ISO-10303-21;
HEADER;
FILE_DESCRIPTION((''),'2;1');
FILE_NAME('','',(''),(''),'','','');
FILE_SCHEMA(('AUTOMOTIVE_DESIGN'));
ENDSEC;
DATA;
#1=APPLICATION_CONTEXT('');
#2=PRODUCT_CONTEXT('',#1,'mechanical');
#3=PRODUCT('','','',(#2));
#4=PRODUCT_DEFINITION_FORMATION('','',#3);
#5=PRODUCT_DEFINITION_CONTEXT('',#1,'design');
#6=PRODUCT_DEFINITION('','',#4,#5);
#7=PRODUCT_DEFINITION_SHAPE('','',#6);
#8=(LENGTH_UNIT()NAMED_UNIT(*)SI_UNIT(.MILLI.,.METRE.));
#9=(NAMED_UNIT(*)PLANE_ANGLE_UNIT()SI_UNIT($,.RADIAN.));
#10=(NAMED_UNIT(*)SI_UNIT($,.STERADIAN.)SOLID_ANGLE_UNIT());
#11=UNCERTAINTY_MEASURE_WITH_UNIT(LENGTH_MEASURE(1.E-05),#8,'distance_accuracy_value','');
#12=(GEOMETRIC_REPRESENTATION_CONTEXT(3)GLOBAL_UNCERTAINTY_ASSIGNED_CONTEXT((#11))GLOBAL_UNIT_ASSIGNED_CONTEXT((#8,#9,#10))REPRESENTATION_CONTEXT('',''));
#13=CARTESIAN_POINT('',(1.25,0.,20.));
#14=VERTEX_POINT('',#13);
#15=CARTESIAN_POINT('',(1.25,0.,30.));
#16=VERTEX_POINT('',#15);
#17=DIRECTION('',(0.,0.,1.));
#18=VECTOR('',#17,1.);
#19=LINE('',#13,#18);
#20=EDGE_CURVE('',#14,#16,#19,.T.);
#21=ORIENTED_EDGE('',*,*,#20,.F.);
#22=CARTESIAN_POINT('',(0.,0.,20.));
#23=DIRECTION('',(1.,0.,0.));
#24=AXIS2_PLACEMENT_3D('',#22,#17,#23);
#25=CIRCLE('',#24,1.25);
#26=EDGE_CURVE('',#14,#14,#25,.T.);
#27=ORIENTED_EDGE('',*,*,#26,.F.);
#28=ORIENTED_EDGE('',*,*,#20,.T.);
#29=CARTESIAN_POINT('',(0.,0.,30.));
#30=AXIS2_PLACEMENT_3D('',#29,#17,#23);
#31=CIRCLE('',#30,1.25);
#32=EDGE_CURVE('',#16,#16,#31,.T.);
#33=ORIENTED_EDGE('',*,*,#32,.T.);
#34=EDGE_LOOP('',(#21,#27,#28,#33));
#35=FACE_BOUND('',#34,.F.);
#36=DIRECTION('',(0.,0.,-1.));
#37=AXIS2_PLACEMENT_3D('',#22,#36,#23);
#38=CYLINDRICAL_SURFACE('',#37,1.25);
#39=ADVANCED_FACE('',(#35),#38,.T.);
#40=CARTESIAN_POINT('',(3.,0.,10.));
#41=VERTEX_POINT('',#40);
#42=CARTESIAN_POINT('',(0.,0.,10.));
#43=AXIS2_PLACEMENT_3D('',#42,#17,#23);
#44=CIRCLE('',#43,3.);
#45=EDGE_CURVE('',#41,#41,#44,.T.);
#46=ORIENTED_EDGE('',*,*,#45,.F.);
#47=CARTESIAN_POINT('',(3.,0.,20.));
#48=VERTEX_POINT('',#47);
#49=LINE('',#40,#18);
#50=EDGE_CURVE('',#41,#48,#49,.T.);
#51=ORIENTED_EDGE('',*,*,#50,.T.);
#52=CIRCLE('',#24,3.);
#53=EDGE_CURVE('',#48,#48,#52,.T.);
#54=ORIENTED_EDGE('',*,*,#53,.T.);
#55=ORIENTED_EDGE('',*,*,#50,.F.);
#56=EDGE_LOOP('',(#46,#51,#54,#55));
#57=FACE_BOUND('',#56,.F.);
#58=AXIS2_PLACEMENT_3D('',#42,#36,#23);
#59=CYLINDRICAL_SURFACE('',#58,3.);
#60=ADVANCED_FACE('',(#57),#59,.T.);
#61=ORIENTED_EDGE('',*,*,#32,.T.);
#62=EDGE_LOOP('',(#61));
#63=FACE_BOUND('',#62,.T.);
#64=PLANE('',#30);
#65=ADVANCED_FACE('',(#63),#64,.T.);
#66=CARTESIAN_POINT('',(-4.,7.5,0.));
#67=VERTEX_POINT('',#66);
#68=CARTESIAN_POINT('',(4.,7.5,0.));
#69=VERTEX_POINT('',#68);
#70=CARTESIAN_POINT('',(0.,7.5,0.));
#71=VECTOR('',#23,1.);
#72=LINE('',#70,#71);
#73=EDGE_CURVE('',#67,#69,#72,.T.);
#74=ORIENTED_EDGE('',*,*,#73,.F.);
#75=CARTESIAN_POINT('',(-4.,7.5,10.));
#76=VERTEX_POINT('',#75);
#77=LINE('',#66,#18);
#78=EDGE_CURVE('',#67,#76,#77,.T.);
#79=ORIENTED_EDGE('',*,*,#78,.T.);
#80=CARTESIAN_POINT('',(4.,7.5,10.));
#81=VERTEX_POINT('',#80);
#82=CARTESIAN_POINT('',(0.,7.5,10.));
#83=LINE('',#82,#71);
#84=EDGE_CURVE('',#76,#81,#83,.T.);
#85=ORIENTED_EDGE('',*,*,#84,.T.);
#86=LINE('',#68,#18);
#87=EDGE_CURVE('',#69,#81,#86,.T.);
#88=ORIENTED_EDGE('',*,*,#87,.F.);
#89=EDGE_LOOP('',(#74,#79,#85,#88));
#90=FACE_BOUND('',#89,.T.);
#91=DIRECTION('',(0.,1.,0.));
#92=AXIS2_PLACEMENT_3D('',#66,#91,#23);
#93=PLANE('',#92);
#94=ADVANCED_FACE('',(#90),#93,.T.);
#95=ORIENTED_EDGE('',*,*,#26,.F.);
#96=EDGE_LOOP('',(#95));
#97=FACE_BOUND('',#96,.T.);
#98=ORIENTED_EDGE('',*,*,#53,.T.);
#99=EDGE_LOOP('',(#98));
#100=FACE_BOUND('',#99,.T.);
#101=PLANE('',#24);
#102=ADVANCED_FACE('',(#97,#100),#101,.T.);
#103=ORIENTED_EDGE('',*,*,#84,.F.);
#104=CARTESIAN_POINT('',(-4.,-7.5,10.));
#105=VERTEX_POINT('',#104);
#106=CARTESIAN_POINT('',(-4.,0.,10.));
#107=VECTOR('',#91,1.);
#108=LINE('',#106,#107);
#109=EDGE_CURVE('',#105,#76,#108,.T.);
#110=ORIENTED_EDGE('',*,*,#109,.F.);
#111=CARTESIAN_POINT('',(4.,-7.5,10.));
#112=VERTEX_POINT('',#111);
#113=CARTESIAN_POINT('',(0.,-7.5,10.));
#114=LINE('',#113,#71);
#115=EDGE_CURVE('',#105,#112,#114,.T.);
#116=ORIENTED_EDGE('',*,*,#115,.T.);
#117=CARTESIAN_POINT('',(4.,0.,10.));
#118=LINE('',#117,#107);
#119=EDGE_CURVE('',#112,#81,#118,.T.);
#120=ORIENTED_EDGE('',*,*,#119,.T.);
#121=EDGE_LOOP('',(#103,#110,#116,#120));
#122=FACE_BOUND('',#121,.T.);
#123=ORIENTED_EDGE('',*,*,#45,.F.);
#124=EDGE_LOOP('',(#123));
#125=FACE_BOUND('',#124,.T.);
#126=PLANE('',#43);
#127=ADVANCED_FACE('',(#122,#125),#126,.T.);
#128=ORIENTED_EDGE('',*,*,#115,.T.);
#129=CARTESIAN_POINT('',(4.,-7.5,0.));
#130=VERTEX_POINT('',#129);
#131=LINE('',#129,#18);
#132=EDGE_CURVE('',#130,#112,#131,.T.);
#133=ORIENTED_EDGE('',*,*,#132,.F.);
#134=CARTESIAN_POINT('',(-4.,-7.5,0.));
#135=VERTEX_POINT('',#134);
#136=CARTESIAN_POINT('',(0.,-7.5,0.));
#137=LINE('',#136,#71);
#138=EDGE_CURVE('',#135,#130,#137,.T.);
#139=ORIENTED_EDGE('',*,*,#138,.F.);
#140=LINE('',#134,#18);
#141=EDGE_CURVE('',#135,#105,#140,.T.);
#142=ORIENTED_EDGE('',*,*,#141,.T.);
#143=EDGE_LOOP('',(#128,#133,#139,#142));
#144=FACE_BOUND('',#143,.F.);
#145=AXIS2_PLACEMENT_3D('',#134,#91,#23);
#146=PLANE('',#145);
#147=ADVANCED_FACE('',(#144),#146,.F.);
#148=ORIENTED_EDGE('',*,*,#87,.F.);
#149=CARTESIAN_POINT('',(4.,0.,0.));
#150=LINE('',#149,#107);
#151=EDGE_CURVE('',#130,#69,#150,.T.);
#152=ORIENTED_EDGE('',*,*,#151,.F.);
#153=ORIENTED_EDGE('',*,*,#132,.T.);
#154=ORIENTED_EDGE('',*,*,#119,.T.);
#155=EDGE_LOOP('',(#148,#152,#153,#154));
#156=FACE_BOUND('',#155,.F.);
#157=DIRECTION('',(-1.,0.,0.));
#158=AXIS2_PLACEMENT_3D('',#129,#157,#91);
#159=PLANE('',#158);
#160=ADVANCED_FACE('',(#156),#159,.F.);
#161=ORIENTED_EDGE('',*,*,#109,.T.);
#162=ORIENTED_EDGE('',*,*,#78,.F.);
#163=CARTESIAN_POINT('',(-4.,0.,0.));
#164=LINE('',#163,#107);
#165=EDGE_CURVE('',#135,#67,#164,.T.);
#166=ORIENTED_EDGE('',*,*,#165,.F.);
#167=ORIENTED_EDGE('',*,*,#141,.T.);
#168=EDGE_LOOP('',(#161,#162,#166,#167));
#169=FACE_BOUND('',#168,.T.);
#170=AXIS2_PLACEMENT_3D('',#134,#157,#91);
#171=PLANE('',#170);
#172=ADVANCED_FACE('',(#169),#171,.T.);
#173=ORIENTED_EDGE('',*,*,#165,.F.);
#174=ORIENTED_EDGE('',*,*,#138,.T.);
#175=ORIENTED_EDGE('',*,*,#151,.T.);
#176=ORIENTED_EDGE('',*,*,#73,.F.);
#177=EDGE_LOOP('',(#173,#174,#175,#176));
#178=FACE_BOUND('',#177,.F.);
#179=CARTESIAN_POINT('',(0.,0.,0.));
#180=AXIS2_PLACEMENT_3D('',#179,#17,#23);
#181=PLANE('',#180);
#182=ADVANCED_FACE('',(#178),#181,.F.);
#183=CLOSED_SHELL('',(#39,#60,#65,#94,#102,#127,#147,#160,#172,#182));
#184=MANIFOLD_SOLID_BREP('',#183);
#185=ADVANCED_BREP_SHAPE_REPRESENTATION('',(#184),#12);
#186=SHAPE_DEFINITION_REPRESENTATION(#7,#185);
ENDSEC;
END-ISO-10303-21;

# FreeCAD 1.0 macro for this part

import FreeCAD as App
import Part
import Sketcher
from FreeCAD import Vector


def add_polygon(sketch, points):
    """Adds a closed chain of lines whose ends are joined by coincident constraints."""
    first, n = sketch.GeometryCount, len(points)
    for a, b in zip(points, points[1:] + points[:1]):
        sketch.addGeometry(Part.LineSegment(App.Vector(*a, 0), App.Vector(*b, 0)), False)
    for i in range(n):
        sketch.addConstraint(Sketcher.Constraint("Coincident", first + i, 2, first + (i + 1) % n, 1))

doc = App.newDocument("Part")
body = doc.addObject("PartDesign::Body", "Body")

# Sketch on XY plane
sketch1 = body.newObject("Sketcher::SketchObject", "Sketch")
sketch1.AttachmentSupport = (doc.getObject("XY_Plane"), [""])
sketch1.MapMode = "FlatFace"
add_polygon(sketch1, [(-4, 7.5), (-4, -7.5), (4, -7.5), (4, 7.5)])  # lines 0-3
sketch1.addConstraint([
    Sketcher.Constraint("Vertical", 0),
    Sketcher.Constraint("Horizontal", 1),
    Sketcher.Constraint("Vertical", 2),
    Sketcher.Constraint("Horizontal", 3),
    Sketcher.Constraint("Symmetric", 0, 2, 2, 2, -1, 1),
    Sketcher.Constraint("DistanceX", 1, 1, 1, 2, 8.0),
    Sketcher.Constraint("DistanceY", 0, 2, 0, 1, 15.0),
])
pad1 = body.newObject("PartDesign::Pad", "Pad")
pad1.Profile = sketch1
pad1.Length = 10

# Sketch on XY plane
sketch2 = body.newObject("Sketcher::SketchObject", "Sketch001")
sketch2.AttachmentSupport = (doc.getObject("XY_Plane"), [""])
sketch2.MapMode = "FlatFace"
sketch2.AttachmentOffset = App.Placement(Vector(0, 0, 10), App.Rotation())
sketch2.addGeometry(Part.Circle(Vector(0, 0, 0), Vector(0, 0, 1), 3), False)
sketch2.addConstraint([
    Sketcher.Constraint("Coincident", 0, 3, -1, 1),
    Sketcher.Constraint("Diameter", 0, 6.0),
])
pad2 = body.newObject("PartDesign::Pad", "Pad001")
pad2.Profile = sketch2
pad2.Length = 10

# Sketch on XY plane
sketch3 = body.newObject("Sketcher::SketchObject", "Sketch002")
sketch3.AttachmentSupport = (doc.getObject("XY_Plane"), [""])
sketch3.MapMode = "FlatFace"
sketch3.AttachmentOffset = App.Placement(Vector(0, 0, 20), App.Rotation())
sketch3.addGeometry(Part.Circle(Vector(0, 0, 0), Vector(0, 0, 1), 1.25), False)
sketch3.addConstraint([
    Sketcher.Constraint("Coincident", 0, 3, -1, 1),
    Sketcher.Constraint("Diameter", 0, 2.5),
])
pad3 = body.newObject("PartDesign::Pad", "Pad002")
pad3.Profile = sketch3
pad3.Length = 10

doc.recompute()
